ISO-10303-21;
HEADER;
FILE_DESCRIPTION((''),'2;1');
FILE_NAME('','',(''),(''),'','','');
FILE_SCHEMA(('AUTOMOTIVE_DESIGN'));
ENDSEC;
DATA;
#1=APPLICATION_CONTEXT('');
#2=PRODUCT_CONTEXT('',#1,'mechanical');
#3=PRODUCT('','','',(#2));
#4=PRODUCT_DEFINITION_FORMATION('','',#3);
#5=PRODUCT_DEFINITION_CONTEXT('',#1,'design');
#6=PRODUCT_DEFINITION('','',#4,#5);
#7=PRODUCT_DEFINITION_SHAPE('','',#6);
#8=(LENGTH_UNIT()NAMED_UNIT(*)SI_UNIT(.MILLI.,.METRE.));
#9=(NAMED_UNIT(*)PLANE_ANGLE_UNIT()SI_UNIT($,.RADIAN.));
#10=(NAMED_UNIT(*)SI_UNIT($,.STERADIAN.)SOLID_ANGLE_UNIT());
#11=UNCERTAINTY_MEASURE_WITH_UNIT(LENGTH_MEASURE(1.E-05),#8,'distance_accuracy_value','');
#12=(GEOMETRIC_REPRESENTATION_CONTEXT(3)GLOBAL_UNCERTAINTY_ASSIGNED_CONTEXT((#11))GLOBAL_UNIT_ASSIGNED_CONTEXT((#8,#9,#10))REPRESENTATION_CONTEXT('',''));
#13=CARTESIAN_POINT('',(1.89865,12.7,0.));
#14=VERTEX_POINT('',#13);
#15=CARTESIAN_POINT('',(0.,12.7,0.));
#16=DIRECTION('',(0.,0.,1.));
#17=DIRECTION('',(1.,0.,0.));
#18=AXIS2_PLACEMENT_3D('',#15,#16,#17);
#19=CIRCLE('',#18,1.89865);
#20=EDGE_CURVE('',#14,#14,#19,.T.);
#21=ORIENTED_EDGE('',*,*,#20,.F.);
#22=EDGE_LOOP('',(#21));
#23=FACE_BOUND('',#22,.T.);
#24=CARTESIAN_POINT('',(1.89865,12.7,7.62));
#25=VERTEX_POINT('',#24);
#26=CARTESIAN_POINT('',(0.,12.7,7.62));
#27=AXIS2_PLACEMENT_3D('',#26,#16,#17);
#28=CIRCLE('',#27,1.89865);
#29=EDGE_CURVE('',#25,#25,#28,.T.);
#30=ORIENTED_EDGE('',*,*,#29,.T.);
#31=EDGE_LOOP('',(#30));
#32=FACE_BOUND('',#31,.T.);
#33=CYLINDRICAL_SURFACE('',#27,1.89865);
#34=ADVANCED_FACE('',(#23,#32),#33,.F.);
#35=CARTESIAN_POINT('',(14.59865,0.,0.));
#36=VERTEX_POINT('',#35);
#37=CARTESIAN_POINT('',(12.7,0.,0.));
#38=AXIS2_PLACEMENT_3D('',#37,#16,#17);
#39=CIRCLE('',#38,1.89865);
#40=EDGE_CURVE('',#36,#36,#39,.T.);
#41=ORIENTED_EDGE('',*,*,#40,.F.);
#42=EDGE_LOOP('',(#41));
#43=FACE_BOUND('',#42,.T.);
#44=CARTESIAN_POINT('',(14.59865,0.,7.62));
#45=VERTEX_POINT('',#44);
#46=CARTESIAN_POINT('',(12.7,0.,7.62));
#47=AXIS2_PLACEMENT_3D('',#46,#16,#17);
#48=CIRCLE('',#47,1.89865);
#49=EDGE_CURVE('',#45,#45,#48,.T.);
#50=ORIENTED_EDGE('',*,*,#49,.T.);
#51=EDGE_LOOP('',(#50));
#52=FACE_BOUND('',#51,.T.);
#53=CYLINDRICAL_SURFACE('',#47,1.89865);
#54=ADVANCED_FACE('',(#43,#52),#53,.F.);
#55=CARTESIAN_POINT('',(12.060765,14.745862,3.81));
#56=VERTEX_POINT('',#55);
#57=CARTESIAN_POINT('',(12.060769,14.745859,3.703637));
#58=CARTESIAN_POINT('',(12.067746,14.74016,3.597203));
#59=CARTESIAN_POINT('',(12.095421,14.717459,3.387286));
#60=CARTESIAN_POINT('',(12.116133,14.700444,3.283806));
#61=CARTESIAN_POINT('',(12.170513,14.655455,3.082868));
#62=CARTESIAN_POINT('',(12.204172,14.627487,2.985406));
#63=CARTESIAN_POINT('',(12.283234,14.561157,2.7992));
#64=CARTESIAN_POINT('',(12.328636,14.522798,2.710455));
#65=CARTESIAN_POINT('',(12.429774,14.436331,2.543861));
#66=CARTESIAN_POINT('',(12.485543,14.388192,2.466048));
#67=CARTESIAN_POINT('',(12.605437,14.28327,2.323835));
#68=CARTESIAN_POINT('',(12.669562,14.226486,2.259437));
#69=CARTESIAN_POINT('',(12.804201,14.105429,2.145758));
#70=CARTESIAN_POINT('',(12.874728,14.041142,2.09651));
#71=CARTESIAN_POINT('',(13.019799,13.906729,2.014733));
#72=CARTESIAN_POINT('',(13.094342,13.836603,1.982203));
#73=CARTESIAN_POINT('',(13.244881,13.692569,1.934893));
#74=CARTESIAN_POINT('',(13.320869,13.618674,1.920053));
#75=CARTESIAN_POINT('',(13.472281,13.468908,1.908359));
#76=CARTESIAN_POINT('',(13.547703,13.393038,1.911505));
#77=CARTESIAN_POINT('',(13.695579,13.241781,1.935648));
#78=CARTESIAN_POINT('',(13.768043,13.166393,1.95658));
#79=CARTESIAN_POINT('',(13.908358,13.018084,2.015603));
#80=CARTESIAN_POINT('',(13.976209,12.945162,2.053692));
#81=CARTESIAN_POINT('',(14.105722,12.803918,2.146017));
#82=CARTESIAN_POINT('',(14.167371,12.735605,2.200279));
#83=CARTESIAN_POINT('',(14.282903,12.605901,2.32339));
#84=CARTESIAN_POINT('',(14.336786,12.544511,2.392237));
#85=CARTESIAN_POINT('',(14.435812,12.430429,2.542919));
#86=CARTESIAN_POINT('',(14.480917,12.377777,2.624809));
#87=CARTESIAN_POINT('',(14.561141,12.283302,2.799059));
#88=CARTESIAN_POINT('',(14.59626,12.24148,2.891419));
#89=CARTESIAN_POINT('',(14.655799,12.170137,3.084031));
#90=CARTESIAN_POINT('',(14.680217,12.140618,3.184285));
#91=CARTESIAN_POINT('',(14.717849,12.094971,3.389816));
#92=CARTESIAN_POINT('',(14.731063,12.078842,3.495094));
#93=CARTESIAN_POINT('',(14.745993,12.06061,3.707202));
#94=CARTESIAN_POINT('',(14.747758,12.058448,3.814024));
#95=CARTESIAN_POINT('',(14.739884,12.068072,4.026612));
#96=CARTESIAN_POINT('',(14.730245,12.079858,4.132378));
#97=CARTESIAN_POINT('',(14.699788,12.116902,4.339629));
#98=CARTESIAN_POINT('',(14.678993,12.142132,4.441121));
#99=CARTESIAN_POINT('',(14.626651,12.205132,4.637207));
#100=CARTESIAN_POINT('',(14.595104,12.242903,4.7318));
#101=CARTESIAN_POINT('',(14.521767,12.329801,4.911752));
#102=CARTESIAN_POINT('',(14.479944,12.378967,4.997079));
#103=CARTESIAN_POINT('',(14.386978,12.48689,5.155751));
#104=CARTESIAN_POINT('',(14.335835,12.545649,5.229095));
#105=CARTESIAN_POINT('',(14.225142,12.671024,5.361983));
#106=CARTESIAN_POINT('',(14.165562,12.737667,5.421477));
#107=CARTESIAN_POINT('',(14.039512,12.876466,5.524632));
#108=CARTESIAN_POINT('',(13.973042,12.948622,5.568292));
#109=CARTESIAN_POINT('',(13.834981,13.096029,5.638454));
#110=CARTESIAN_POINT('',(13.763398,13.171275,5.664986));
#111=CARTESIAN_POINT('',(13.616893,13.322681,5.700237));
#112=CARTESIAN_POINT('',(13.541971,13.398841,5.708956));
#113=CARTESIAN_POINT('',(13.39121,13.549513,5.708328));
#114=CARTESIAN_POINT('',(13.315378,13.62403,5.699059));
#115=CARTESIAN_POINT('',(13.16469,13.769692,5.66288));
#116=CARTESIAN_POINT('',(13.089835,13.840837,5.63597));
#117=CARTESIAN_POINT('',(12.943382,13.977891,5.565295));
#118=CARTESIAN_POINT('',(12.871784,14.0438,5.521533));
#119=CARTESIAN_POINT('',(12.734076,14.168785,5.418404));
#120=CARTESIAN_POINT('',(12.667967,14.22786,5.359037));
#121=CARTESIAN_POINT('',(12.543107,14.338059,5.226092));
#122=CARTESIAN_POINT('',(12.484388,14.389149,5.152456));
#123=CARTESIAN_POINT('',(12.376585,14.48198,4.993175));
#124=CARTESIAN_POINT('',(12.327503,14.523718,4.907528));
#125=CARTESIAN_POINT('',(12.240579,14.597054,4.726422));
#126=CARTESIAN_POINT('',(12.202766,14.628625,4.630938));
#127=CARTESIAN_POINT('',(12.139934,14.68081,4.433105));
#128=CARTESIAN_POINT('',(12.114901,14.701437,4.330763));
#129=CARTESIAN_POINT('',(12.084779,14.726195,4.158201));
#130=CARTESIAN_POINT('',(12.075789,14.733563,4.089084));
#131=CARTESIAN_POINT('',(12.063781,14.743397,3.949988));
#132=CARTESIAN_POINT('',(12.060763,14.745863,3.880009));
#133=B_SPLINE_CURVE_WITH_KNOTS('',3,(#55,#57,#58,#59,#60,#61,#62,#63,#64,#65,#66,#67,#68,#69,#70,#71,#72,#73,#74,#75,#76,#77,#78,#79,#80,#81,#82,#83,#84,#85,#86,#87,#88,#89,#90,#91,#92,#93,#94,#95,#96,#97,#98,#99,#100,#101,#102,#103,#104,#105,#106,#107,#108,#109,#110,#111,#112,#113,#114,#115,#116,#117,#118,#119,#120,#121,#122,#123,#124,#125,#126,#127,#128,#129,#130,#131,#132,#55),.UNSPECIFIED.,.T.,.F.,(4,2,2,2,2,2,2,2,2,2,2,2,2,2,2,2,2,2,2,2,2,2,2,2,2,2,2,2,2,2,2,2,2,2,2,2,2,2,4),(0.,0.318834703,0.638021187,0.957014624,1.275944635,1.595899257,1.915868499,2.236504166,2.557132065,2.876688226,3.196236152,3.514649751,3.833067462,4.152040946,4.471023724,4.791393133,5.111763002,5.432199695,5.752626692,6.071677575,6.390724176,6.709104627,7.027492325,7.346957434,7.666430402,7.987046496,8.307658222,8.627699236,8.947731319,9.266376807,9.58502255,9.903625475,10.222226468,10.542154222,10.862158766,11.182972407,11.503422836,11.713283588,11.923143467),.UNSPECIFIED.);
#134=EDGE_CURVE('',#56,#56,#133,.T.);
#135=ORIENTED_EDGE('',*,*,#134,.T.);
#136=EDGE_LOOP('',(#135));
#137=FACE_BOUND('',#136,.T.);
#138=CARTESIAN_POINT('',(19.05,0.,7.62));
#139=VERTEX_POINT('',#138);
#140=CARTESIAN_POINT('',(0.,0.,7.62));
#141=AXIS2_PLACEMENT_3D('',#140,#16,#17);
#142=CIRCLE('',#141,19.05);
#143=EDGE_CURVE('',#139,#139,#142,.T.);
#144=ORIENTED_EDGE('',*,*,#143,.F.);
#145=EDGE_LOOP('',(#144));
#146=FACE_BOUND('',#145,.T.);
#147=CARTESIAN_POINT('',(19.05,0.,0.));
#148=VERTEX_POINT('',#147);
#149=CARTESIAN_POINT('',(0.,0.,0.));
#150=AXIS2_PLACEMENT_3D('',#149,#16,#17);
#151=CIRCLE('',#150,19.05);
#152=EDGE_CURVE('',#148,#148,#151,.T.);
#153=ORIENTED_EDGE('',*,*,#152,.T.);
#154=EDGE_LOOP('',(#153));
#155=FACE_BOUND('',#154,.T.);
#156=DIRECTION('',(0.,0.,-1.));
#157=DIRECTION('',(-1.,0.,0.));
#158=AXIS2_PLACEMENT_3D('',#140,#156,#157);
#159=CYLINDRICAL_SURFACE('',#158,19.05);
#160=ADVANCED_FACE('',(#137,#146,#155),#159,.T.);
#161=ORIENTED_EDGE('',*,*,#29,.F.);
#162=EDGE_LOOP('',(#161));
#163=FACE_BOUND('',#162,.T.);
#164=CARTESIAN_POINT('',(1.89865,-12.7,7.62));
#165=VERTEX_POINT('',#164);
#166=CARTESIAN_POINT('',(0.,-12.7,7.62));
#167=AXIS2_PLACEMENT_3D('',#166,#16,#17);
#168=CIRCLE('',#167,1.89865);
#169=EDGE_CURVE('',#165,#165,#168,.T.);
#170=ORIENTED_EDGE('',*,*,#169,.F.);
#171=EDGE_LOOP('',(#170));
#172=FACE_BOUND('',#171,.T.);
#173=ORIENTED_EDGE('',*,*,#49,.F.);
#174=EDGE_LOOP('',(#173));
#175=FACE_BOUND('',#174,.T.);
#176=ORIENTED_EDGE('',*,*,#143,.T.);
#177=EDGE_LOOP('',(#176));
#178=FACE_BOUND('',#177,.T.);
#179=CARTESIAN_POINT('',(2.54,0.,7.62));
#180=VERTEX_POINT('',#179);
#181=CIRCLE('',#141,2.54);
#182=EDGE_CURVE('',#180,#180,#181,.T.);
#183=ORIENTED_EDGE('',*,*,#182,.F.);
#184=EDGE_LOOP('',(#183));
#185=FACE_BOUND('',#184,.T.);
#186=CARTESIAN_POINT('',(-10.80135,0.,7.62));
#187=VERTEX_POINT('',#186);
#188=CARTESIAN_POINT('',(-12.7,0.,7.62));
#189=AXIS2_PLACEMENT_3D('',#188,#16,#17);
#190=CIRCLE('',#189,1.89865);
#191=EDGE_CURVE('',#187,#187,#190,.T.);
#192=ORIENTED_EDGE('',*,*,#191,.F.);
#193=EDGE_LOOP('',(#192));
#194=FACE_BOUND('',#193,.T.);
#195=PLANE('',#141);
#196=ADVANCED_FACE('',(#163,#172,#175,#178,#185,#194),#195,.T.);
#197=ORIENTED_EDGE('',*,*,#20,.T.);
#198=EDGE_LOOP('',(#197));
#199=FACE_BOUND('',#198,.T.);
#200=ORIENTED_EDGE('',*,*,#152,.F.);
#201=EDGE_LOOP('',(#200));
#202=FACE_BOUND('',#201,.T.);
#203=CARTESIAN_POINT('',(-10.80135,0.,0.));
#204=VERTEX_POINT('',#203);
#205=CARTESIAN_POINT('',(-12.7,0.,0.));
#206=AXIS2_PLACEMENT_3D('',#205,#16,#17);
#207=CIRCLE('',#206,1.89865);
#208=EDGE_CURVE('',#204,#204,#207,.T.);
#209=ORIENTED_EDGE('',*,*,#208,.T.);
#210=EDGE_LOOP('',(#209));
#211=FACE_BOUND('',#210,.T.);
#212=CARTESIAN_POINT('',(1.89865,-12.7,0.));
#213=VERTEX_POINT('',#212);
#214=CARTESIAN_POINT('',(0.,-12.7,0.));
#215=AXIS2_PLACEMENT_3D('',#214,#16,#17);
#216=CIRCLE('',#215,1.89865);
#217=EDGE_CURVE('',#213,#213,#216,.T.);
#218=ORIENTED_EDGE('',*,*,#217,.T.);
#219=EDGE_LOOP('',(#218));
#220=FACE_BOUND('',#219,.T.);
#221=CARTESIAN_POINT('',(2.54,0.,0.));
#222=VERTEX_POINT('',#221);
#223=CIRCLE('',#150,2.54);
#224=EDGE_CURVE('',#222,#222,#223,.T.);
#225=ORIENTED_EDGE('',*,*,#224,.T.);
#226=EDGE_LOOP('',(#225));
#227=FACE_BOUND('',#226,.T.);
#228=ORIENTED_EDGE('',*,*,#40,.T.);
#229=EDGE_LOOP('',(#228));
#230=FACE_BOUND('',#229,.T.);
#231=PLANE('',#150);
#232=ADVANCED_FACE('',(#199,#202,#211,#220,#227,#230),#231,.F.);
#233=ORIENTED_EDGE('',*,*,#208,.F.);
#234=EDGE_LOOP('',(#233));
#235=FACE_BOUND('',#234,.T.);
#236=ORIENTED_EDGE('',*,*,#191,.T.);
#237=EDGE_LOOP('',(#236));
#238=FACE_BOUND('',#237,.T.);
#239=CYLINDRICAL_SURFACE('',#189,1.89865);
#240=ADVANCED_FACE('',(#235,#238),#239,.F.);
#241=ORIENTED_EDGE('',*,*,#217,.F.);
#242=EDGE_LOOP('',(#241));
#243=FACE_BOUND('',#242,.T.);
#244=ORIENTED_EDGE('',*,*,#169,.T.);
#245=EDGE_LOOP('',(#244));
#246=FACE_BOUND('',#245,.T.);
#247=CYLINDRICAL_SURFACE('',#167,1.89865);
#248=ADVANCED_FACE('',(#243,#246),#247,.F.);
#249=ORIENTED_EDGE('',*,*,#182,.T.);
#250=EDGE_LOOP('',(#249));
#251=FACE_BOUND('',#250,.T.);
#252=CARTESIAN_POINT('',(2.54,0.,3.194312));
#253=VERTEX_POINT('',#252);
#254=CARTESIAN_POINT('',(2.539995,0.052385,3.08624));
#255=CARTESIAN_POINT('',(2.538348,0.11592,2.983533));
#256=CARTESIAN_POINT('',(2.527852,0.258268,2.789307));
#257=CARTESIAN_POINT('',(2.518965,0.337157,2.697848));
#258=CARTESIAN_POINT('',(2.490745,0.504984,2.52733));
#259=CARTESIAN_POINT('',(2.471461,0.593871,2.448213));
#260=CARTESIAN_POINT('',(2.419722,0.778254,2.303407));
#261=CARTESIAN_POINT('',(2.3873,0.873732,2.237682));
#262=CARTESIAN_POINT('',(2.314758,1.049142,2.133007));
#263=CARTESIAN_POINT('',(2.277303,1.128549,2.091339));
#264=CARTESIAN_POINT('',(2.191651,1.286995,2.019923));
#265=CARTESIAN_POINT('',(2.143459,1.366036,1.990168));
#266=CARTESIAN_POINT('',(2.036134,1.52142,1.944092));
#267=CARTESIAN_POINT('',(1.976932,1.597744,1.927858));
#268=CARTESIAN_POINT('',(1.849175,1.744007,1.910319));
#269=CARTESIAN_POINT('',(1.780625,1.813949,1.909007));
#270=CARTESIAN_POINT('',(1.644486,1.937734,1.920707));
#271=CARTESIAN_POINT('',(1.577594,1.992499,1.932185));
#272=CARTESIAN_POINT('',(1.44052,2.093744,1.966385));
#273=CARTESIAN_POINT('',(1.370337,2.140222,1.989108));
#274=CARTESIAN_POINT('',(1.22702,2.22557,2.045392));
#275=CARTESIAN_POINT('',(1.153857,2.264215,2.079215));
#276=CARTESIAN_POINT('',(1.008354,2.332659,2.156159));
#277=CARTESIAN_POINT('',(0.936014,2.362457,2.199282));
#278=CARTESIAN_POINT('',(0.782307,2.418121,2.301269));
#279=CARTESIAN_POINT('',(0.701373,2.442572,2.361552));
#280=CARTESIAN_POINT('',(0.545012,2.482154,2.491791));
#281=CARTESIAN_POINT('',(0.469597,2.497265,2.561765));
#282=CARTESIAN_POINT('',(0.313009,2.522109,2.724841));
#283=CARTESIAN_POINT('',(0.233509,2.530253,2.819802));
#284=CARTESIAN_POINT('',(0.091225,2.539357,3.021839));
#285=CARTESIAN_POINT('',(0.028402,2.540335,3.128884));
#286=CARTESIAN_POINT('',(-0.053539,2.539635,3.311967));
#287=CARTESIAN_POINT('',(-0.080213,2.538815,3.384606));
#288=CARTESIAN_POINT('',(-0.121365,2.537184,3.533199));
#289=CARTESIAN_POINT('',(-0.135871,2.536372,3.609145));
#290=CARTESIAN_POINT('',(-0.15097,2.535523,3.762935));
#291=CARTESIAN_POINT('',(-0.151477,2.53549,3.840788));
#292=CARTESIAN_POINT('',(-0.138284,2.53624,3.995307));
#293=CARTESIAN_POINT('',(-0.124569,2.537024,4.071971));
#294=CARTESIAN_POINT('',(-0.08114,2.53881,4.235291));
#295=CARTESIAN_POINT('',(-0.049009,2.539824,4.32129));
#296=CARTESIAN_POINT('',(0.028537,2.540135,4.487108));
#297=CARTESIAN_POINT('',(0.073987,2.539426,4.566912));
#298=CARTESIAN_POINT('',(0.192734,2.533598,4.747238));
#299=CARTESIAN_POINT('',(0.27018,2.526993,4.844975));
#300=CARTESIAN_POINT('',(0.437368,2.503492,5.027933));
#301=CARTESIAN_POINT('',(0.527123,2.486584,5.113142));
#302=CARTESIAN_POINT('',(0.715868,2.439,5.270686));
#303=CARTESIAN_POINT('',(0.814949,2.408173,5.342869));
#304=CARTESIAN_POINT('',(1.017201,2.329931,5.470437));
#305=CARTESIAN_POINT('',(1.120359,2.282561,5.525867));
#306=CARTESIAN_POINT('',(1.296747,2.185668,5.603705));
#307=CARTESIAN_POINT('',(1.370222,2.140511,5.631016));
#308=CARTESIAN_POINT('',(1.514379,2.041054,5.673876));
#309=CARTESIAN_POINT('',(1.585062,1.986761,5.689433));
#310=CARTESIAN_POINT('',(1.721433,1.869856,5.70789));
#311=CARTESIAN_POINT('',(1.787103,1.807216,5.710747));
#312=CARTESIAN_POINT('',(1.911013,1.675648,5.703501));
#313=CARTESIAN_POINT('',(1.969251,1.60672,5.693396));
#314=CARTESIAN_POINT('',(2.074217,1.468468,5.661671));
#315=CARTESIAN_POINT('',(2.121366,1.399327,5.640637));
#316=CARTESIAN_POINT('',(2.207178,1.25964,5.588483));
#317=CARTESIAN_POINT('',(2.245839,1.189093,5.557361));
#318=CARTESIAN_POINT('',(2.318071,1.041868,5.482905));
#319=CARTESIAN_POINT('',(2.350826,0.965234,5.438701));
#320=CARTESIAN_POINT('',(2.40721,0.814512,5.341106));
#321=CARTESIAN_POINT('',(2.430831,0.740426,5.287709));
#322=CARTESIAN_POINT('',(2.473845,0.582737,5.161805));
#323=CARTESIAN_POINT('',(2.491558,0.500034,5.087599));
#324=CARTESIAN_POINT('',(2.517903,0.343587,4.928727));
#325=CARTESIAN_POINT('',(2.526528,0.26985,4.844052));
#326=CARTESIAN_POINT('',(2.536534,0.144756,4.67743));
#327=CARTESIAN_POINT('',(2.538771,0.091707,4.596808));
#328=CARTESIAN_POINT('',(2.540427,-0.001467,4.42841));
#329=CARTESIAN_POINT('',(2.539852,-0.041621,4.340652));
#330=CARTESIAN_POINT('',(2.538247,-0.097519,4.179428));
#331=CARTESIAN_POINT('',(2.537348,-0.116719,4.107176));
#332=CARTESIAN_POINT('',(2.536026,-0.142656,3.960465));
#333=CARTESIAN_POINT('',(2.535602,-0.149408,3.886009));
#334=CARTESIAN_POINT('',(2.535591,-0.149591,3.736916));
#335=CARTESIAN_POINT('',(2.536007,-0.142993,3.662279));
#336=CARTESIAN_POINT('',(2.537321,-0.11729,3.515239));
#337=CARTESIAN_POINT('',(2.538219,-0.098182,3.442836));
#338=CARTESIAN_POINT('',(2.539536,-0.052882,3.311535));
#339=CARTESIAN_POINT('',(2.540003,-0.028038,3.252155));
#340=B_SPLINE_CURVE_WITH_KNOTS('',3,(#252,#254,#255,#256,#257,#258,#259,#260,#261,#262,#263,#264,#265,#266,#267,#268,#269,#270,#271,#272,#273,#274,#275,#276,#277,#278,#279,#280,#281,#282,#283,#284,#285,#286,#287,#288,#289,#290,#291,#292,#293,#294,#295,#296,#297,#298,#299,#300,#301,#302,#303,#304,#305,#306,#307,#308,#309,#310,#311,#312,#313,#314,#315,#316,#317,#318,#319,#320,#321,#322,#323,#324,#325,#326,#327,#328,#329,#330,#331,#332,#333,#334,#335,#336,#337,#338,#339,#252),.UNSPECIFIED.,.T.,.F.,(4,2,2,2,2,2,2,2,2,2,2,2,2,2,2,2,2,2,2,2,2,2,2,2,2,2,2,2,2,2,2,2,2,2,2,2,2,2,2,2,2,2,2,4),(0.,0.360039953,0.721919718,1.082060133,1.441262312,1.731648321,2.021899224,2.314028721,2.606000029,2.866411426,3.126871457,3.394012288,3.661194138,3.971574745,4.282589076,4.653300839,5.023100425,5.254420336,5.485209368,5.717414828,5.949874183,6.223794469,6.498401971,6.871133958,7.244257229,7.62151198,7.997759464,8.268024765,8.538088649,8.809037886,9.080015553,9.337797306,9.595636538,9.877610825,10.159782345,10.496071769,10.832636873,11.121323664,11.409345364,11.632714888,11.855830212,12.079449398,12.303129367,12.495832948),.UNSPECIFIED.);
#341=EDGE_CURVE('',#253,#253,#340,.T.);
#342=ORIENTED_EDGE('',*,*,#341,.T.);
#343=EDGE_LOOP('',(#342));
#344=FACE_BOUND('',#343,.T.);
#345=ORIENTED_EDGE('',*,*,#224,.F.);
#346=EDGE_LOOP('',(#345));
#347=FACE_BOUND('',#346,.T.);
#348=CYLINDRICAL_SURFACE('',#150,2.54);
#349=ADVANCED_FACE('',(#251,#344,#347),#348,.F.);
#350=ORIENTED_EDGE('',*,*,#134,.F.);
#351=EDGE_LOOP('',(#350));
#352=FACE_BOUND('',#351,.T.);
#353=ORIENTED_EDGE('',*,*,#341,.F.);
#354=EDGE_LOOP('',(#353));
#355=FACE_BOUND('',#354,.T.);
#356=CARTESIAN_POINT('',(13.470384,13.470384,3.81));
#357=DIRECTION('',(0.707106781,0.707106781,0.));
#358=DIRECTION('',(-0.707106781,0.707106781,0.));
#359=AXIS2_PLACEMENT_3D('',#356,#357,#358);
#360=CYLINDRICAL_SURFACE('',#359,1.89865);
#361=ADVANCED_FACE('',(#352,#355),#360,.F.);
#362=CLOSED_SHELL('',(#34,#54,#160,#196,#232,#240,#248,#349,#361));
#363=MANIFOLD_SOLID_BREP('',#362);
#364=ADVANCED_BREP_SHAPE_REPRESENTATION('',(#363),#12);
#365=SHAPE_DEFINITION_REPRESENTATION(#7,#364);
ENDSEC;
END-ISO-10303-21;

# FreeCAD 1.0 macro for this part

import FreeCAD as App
import Part
import Sketcher

V = App.Vector
Q = App.Units.Quantity

doc = App.newDocument("Part")
params = doc.addObject("Spreadsheet::Sheet", "Params")
for row, (alias, value) in enumerate([
    ("sketch1_diameter", "1.5 in"),
    ("pad1_length", "0.3 in"),
    ("sketch2_diameter", "0.2 in"),
    ("hole_diameter", "0.1495 in"),
    ("hole2_diameter", "0.1495 in"),
    ("hole2_depth", "0.7885 in"),
], start=1):
    params.set(f"A{row}", alias)
    params.set(f"B{row}", "=" + value)
    params.setAlias(f"B{row}", alias)

body = doc.addObject("PartDesign::Body", "Body")

# Sketch on XY plane
sketch1 = body.newObject("Sketcher::SketchObject", "Sketch")
sketch1.AttachmentSupport = (doc.getObject("XY_Plane"), [""])
sketch1.MapMode = "FlatFace"
sketch1.addGeometry(Part.Circle(V(0, 0, 0), V(0, 0, 1), 19), False)
sketch1.addConstraint(Sketcher.Constraint("Coincident", 0, 3, -1, 1))
sketch1.addConstraint(Sketcher.Constraint("Diameter", 0, Q("1.5 in")))
sketch1.setExpression("Constraints[1]", "Params.sketch1_diameter")
pad1 = body.newObject("PartDesign::Pad", "Pad")
pad1.Profile = sketch1
pad1.setExpression("Length", "Params.pad1_length")

# Sketch on XY plane
sketch2 = body.newObject("Sketcher::SketchObject", "Sketch001")
sketch2.AttachmentSupport = (doc.getObject("XY_Plane"), [""])
sketch2.MapMode = "FlatFace"
sketch2.AttachmentOffset = App.Placement(V(0, 0, 0.3 * 25.4), App.Rotation())
sketch2.addGeometry(Part.Circle(V(0, 0, 0), V(0, 0, 1), 2.5), False)
sketch2.addConstraint(Sketcher.Constraint("Coincident", 0, 3, -1, 1))
sketch2.addConstraint(Sketcher.Constraint("Diameter", 0, Q("0.2 in")))
sketch2.setExpression("Constraints[1]", "Params.sketch2_diameter")
pocket1 = body.newObject("PartDesign::Pocket", "Pocket")
pocket1.Profile = sketch2
pocket1.Type = "ThroughAll"

# Sketch on XY plane
sketch3 = body.newObject("Sketcher::SketchObject", "Sketch002")
sketch3.AttachmentSupport = (doc.getObject("XY_Plane"), [""])
sketch3.MapMode = "FlatFace"
sketch3.AttachmentOffset = App.Placement(V(0, 0, 0.3 * 25.4), App.Rotation())
sketch3.addGeometry(Part.Circle(V(0, 12.7, 0), V(0, 0, 1), 1.9), False)
sketch3.addConstraint(Sketcher.Constraint("PointOnObject", 0, 3, -2))
sketch3.addConstraint(Sketcher.Constraint("Diameter", 0, Q("0.1495 in")))
sketch3.addConstraint(Sketcher.Constraint("DistanceY", -1, 1, 0, 3, Q("0.5 in")))
doc.recompute()
hole = body.newObject("PartDesign::Hole", "Hole")
hole.Profile = sketch3
hole.ThreadType = "None"
hole.setExpression("Diameter", "Params.hole_diameter")
hole.DepthType = "ThroughAll"
doc.recompute()

polarpattern = body.newObject("PartDesign::PolarPattern", "PolarPattern")
polarpattern.Originals = [hole]
polarpattern.Axis = (doc.getObject("Z_Axis"), [""])
polarpattern.Angle = 360
polarpattern.Occurrences = 4
body.Tip = polarpattern

# Sketch on an angled plane
sketch4 = body.newObject("Sketcher::SketchObject", "Sketch003")
sketch4.Placement = App.Placement(V(13.470384, 13.470384, 0), App.Rotation(V(-0.707106781, 0.707106781, 0), V(0, 0, 0.999999999), V(0.707106781, 0.707106781, 0), "ZXY"))
sketch4.addGeometry(Part.Circle(V(0, 3.8, 0), V(0, 0, 1), 1.9), False)
sketch4.addConstraint(Sketcher.Constraint("PointOnObject", 0, 3, -2))
sketch4.addConstraint(Sketcher.Constraint("Diameter", 0, Q("0.1495 in")))
sketch4.addConstraint(Sketcher.Constraint("DistanceY", -1, 1, 0, 3, Q("0.15 in")))
doc.recompute()
hole2 = body.newObject("PartDesign::Hole", "Hole001")
hole2.Profile = sketch4
hole2.ThreadType = "None"
hole2.setExpression("Diameter", "Params.hole2_diameter")
hole2.DepthType = "Dimension"
hole2.setExpression("Depth", "Params.hole2_depth")
hole2.DrillPoint = "Angled"
hole2.DrillPointAngle = 118

doc.recompute()
